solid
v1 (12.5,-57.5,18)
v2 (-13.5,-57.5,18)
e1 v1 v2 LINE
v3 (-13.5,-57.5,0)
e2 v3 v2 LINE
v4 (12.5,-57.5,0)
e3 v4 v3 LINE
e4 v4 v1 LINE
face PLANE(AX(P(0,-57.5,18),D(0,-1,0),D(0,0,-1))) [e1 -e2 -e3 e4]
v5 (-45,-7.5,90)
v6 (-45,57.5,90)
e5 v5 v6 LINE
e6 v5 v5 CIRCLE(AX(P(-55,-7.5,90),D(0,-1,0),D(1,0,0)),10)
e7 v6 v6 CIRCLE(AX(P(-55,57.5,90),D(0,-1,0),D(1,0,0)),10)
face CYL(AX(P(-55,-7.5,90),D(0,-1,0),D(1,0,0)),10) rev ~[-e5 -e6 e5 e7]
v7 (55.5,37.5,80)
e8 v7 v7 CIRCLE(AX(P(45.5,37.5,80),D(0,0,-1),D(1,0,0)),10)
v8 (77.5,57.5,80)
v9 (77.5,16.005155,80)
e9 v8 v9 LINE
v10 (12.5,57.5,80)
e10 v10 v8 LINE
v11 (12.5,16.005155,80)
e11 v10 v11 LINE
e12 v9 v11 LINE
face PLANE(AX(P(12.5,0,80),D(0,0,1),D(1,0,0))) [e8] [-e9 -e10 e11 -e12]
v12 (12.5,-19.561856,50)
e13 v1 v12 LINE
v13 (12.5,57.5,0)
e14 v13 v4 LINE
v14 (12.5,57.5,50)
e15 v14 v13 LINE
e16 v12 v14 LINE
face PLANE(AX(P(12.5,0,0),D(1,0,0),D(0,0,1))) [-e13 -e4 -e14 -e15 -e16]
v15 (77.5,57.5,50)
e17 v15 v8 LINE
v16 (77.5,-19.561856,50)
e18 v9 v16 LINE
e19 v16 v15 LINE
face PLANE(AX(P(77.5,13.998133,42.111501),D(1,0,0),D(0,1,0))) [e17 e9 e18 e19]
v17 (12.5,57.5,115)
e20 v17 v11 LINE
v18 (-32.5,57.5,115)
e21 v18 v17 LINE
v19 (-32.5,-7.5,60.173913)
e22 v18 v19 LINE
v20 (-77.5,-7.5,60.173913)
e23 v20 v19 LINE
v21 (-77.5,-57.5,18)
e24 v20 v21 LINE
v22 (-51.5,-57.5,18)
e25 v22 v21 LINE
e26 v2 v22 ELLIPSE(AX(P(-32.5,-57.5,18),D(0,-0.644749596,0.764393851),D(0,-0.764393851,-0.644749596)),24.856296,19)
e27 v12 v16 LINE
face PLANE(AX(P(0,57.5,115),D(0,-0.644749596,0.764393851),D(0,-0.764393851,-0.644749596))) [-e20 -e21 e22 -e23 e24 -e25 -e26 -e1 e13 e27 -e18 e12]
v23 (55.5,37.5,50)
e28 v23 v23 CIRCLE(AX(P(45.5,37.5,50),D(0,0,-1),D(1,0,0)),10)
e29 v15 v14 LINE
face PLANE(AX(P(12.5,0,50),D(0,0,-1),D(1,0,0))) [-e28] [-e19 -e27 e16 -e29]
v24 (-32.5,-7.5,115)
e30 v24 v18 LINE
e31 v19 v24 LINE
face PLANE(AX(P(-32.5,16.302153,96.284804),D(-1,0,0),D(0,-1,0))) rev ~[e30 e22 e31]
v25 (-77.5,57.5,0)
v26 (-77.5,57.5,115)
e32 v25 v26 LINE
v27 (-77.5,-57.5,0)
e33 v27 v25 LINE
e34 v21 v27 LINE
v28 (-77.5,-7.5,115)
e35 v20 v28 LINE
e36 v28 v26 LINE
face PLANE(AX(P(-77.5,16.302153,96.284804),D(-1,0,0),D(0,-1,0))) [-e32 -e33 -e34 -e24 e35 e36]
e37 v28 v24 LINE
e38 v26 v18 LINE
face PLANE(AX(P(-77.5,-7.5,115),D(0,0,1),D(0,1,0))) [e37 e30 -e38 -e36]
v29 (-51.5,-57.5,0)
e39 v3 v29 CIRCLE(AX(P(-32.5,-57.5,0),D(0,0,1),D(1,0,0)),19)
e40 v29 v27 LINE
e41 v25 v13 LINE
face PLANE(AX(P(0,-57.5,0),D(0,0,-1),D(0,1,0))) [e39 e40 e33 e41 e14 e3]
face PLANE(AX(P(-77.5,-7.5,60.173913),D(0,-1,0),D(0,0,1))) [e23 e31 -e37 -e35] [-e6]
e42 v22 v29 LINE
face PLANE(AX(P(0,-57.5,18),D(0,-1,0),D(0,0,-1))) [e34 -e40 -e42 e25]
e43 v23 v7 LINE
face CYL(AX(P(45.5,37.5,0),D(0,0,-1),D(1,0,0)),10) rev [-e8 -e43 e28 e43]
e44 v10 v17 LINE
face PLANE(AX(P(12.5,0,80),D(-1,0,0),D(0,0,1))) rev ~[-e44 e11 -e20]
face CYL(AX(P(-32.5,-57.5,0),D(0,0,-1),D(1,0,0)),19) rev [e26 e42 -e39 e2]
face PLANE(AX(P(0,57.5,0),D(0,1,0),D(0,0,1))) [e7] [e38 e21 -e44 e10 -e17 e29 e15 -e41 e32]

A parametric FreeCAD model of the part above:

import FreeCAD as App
import Part
import Sketcher


def add_polygon(sketch, points):
    """Adds a closed chain of lines whose ends are joined by coincident constraints."""
    first, n = sketch.GeometryCount, len(points)
    for a, b in zip(points, points[1:] + points[:1]):
        sketch.addGeometry(Part.LineSegment(App.Vector(*a, 0), App.Vector(*b, 0)), False)
    for i in range(n):
        sketch.addConstraint(Sketcher.Constraint("Coincident", first + i, 2, first + (i + 1) % n, 1))

doc = App.newDocument("Part")
body = doc.addObject("PartDesign::Body", "Body")

# Sketch on YZ plane
sketch1 = body.newObject("Sketcher::SketchObject", "Sketch")
sketch1.AttachmentSupport = (doc.getObject("YZ_Plane"), [""])
sketch1.MapMode = "FlatFace"
add_polygon(sketch1, [(-57.5, 0), (57.5, 0), (57.5, 115), (-57.5, 18)])  # lines 0-3
sketch1.addConstraint([
    Sketcher.Constraint("Horizontal", 0),
    Sketcher.Constraint("Vertical", 1),
    Sketcher.Constraint("Vertical", 3),
    Sketcher.Constraint("Symmetric", 0, 2, 3, 2, -1, 1),
    Sketcher.Constraint("Equal", 0, 1),
    Sketcher.Constraint("DistanceX", 0, 1, 0, 2, 115.0),
    Sketcher.Constraint("DistanceY", 3, 2, 3, 1, 18.0),
])
pad1 = body.newObject("PartDesign::Pad", "Pad")
pad1.Profile = sketch1
pad1.Length = 155
pad1.Midplane = True

# Sketch on XZ plane
sketch2 = body.newObject("Sketcher::SketchObject", "Sketch001")
sketch2.AttachmentSupport = (doc.getObject("XZ_Plane"), [""])
sketch2.MapMode = "FlatFace"
add_polygon(sketch2, [(12.5, 115), (12.5, 80), (77.5, 80), (77.5, 115)])  # lines 0-3
add_polygon(sketch2, [(12.5, 50), (12.5, 0), (77.5, 0), (77.5, 50)])  # lines 4-7
sketch2.addConstraint([
    Sketcher.Constraint("Vertical", 0),
    Sketcher.Constraint("Horizontal", 1),
    Sketcher.Constraint("Vertical", 2),
    Sketcher.Constraint("Horizontal", 3),
    Sketcher.Constraint("Vertical", 4),
    Sketcher.Constraint("Horizontal", 5),
    Sketcher.Constraint("Vertical", 6),
    Sketcher.Constraint("Horizontal", 7),
    Sketcher.Constraint("PointOnObject", 4, 2, -1),
    Sketcher.Constraint("Vertical", 3, 2, 4, 2),
    Sketcher.Constraint("Vertical", 2, 2, 5, 2),
    Sketcher.Constraint("DistanceX", 1, 1, 1, 2, 65.0),
    Sketcher.Constraint("DistanceY", 0, 2, 0, 1, 35.0),
    Sketcher.Constraint("DistanceY", 4, 2, 4, 1, 50.0),
    Sketcher.Constraint("DistanceY", -1, 1, 0, 2, 80.0),
    Sketcher.Constraint("DistanceX", -1, 1, 0, 2, 12.5),
])
pocket1 = body.newObject("PartDesign::Pocket", "Pocket")
pocket1.Profile = sketch2
pocket1.Length = 200
pocket1.Midplane = True

# Sketch on XY plane
sketch3 = body.newObject("Sketcher::SketchObject", "Sketch002")
sketch3.AttachmentSupport = (doc.getObject("XY_Plane"), [""])
sketch3.MapMode = "FlatFace"
sketch3.addGeometry([
    Part.Circle(App.Vector(-32.5, -57.5, 0), App.Vector(0, 0, 1), 19),
    Part.Circle(App.Vector(45.5, 37.5, 0), App.Vector(0, 0, 1), 10),
], False)
sketch3.addConstraint([
    Sketcher.Constraint("Diameter", 0, 38.0),
    Sketcher.Constraint("Diameter", 1, 20.0),
    Sketcher.Constraint("DistanceX", 0, 3, 1, 3, 78.0),
    Sketcher.Constraint("DistanceY", 0, 3, 1, 3, 95.0),
    Sketcher.Constraint("DistanceX", 0, 3, -1, 1, 32.5),
    Sketcher.Constraint("DistanceY", 0, 3, -1, 1, 57.5),
])
pocket2 = body.newObject("PartDesign::Pocket", "Pocket001")
pocket2.Profile = sketch3
pocket2.Length = 160.94138
pocket2.Reversed = True

# Sketch on YZ plane
sketch4 = body.newObject("Sketcher::SketchObject", "Sketch003")
sketch4.AttachmentSupport = (doc.getObject("YZ_Plane"), [""])
sketch4.MapMode = "FlatFace"
sketch4.AttachmentOffset = App.Placement(App.Vector(0, 0, -77.5), App.Rotation())
add_polygon(sketch4, [(-7.5, 115), (57.5, 115), (-7.5, 60.173913)])  # lines 0-2
sketch4.addConstraint([
    Sketcher.Constraint("Horizontal", 0),
    Sketcher.Constraint("Vertical", 2),
    Sketcher.Constraint("DistanceX", 0, 1, 0, 2, 65.0),
    Sketcher.Constraint("DistanceY", -1, 1, 0, 2, 115.0),
    Sketcher.Constraint("DistanceX", -1, 1, 0, 2, 57.5),
    Sketcher.Constraint("DistanceY", 2, 1, 2, 2, 54.826087),
])
pad2 = body.newObject("PartDesign::Pad", "Pad001")
pad2.Profile = sketch4
pad2.Length = 45

# Sketch on XZ plane
sketch5 = body.newObject("Sketcher::SketchObject", "Sketch004")
sketch5.AttachmentSupport = (doc.getObject("XZ_Plane"), [""])
sketch5.MapMode = "FlatFace"
sketch5.AttachmentOffset = App.Placement(App.Vector(0, 0, 7.5), App.Rotation())
sketch5.addGeometry(Part.Circle(App.Vector(-55, 90, 0), App.Vector(0, 0, 1), 10), False)
sketch5.addConstraint([
    Sketcher.Constraint("Diameter", 0, 20.0),
    Sketcher.Constraint("DistanceX", 0, 3, -1, 1, 55.0),
    Sketcher.Constraint("DistanceY", -1, 1, 0, 3, 90.0),
])
pocket3 = body.newObject("PartDesign::Pocket", "Pocket002")
pocket3.Profile = sketch5
pocket3.Type = "ThroughAll"

doc.recompute()
